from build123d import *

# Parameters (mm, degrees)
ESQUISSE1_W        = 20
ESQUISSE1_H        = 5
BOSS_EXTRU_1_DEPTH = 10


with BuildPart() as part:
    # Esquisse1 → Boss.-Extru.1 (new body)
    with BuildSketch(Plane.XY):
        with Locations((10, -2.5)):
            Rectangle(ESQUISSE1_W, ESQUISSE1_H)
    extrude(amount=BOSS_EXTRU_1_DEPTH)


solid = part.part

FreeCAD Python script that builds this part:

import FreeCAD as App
import Part
import Sketcher
Q = App.Units.Quantity


def add_polygon(sketch, points):
    """Adds a closed chain of lines whose ends are joined by coincident constraints."""
    first, n = sketch.GeometryCount, len(points)
    for a, b in zip(points, points[1:] + points[:1]):
        sketch.addGeometry(Part.LineSegment(App.Vector(*a, 0), App.Vector(*b, 0)), False)
    for i in range(n):
        sketch.addConstraint(Sketcher.Constraint("Coincident", first + i, 2, first + (i + 1) % n, 1))

doc = App.newDocument("Part")
body = doc.addObject("PartDesign::Body", "Body")

# Sketch on XY plane
sketch1 = doc.addObject("Sketcher::SketchObject", "Sketch")
body.addObject(sketch1)
sketch1.AttachmentSupport = (doc.XY_Plane, [""])
sketch1.MapMode = "FlatFace"
add_polygon(sketch1, [(0, 0), (0, -5), (20, -5), (20, 0)])  # lines 0-3
sketch1.addConstraint(Sketcher.Constraint("Vertical", 0))
sketch1.addConstraint(Sketcher.Constraint("Horizontal", 1))
sketch1.addConstraint(Sketcher.Constraint("Vertical", 2))
sketch1.addConstraint(Sketcher.Constraint("Horizontal", 3))
sketch1.addConstraint(Sketcher.Constraint("Coincident", 3, 2, -1, 1))
sketch1.addConstraint(Sketcher.Constraint("DistanceX", 1, 1, 1, 2, Q("20 mm")))
sketch1.addConstraint(Sketcher.Constraint("DistanceY", 0, 2, 0, 1, Q("5 mm")))
pad1 = doc.addObject("PartDesign::Pad", "Pad")
body.addObject(pad1)
pad1.Profile = sketch1
pad1.Length = 10

doc.recompute()
